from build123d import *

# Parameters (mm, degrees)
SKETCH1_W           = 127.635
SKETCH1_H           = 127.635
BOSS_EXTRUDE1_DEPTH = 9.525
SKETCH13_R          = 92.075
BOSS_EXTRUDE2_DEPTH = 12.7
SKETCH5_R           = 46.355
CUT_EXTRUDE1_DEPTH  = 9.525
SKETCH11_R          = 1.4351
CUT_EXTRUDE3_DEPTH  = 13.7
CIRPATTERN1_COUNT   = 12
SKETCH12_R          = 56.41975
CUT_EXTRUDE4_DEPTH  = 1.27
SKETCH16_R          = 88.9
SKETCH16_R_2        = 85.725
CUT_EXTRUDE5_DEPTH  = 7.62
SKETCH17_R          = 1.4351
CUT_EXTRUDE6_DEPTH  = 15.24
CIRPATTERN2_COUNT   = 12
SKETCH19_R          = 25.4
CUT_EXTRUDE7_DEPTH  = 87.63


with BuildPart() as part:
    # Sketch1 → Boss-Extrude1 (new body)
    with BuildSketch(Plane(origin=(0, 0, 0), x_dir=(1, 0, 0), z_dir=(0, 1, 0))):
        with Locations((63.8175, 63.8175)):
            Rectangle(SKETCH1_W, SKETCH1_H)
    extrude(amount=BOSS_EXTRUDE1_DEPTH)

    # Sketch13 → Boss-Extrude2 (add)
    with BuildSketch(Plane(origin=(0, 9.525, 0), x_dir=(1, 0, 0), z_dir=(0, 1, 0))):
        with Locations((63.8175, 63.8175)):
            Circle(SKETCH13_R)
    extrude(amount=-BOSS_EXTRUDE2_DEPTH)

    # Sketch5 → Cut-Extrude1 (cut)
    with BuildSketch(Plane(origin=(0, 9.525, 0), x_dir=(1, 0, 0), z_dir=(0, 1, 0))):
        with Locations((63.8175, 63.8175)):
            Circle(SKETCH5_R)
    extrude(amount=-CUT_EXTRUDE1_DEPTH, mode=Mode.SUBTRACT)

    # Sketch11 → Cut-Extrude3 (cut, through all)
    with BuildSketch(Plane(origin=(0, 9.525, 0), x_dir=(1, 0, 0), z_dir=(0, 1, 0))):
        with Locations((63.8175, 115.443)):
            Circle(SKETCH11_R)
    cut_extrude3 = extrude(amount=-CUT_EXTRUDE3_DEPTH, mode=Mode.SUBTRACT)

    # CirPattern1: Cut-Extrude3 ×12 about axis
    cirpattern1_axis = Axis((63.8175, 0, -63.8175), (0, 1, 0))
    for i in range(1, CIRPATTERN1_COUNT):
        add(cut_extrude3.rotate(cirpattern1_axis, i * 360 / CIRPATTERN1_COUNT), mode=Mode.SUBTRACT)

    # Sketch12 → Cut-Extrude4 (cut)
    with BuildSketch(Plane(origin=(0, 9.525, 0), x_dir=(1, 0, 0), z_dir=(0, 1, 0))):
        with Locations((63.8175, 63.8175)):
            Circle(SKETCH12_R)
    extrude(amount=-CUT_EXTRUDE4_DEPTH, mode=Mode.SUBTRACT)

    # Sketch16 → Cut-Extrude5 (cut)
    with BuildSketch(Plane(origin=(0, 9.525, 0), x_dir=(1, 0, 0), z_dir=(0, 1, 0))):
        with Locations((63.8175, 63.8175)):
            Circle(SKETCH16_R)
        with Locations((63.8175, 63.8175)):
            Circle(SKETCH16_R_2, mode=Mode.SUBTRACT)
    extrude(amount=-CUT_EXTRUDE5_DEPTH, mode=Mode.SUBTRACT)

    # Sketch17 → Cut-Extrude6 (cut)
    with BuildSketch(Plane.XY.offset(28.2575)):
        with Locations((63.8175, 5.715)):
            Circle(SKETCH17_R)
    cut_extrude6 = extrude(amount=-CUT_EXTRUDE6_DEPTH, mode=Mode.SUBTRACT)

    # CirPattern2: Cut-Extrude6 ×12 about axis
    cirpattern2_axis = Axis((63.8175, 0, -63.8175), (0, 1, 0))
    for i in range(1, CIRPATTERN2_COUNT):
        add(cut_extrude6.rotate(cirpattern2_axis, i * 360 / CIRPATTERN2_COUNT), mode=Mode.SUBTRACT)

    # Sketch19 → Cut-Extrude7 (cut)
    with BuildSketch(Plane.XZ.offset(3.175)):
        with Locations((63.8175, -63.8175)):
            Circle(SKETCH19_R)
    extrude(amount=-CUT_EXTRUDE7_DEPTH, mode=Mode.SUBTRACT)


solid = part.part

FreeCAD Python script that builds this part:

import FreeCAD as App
import Part
import Sketcher
Q = App.Units.Quantity

doc = App.newDocument("Part")
body = doc.addObject("PartDesign::Body", "Body")

sketch1 = doc.addObject("Sketcher::SketchObject", "Sketch")
body.addObject(sketch1)
sketch1.AttachmentSupport = (doc.XZ_Plane, [""])
sketch1.MapMode = "FlatFace"
sketch1.addGeometry([
    Part.LineSegment(App.Vector(0, -128, 0), App.Vector(0, 0, 0)),
    Part.LineSegment(App.Vector(0, 0, 0), App.Vector(128, 0, 0)),
    Part.LineSegment(App.Vector(128, 0, 0), App.Vector(128, -128, 0)),
    Part.LineSegment(App.Vector(128, -128, 0), App.Vector(0, -128, 0)),
], False)
sketch1.addConstraint([
    Sketcher.Constraint("Coincident", 0, 2, 1, 1),
    Sketcher.Constraint("Coincident", 1, 2, 2, 1),
    Sketcher.Constraint("Coincident", 2, 2, 3, 1),
    Sketcher.Constraint("Coincident", 3, 2, 0, 1),
    Sketcher.Constraint("Vertical", 0),
    Sketcher.Constraint("Horizontal", 1),
    Sketcher.Constraint("Vertical", 2),
    Sketcher.Constraint("Horizontal", 3),
    Sketcher.Constraint("Coincident", 0, 2, -1, 1),
    Sketcher.Constraint("Equal", 3, 0),
    Sketcher.Constraint("DistanceX", 1, 1, 1, 2, Q("5.025 in")),
])
pad1 = doc.addObject("PartDesign::Pad", "Pad")
body.addObject(pad1)
pad1.Profile = sketch1
pad1.Length = Q("0.375 in")
pad1.Reversed = True

sketch2 = doc.addObject("Sketcher::SketchObject", "Sketch001")
body.addObject(sketch2)
sketch2.AttachmentSupport = (doc.XZ_Plane, [""])
sketch2.MapMode = "FlatFace"
sketch2.AttachmentOffset = App.Placement(App.Vector(0, 0, -0.375 * 25.4), App.Rotation())
sketch2.addGeometry(Part.Circle(App.Vector(64, -64, 0), App.Vector(0, 0, 1), 92), False)
sketch2.addConstraint([
    Sketcher.Constraint("Diameter", 0, Q("7.25 in")),
    Sketcher.Constraint("DistanceX", -1, 1, 0, 3, Q("2.5125 in")),
    Sketcher.Constraint("DistanceY", 0, 3, -1, 1, Q("2.5125 in")),
])
pad2 = doc.addObject("PartDesign::Pad", "Pad001")
body.addObject(pad2)
pad2.Profile = sketch2
pad2.Length = Q("0.5 in")

sketch3 = doc.addObject("Sketcher::SketchObject", "Sketch002")
body.addObject(sketch3)
sketch3.AttachmentSupport = (doc.XZ_Plane, [""])
sketch3.MapMode = "FlatFace"
sketch3.AttachmentOffset = App.Placement(App.Vector(0, 0, -0.375 * 25.4), App.Rotation())
sketch3.addGeometry(Part.Circle(App.Vector(64, -64, 0), App.Vector(0, 0, 1), 46), False)
sketch3.addConstraint([
    Sketcher.Constraint("Diameter", 0, Q("3.65 in")),
    Sketcher.Constraint("DistanceX", -1, 1, 0, 3, Q("2.5125 in")),
    Sketcher.Constraint("DistanceY", 0, 3, -1, 1, Q("2.5125 in")),
])
pocket1 = doc.addObject("PartDesign::Pocket", "Pocket")
body.addObject(pocket1)
pocket1.Profile = sketch3
pocket1.Length = Q("0.375 in")
pocket1.Reversed = True

sketch4 = doc.addObject("Sketcher::SketchObject", "Sketch003")
body.addObject(sketch4)
sketch4.AttachmentSupport = (doc.XZ_Plane, [""])
sketch4.MapMode = "FlatFace"
sketch4.AttachmentOffset = App.Placement(App.Vector(0, 0, -0.375 * 25.4), App.Rotation())
sketch4.addGeometry(Part.Circle(App.Vector(63.8, -115.4, 0), App.Vector(0, 0, 1), 1.4), False)
sketch4.addConstraint([
    Sketcher.Constraint("Diameter", 0, Q("0.113 in")),
    Sketcher.Constraint("DistanceY", 0, 3, -1, 1, Q("4.545 in")),
    Sketcher.Constraint("DistanceX", -1, 1, 0, 3, Q("2.5125 in")),
])
pocket2 = doc.addObject("PartDesign::Pocket", "Pocket001")
body.addObject(pocket2)
pocket2.Profile = sketch4
pocket2.Type = "ThroughAll"
pocket2.Reversed = True
doc.recompute()

datumline = doc.addObject("PartDesign::Line", "DatumLine")
body.addObject(datumline)
datumline.Placement = App.Placement(App.Vector(63.8175, 0, -63.8175), App.Rotation(App.Vector(0, 0, 1), App.Vector(0, 1, 0)))
polarpattern = doc.addObject("PartDesign::PolarPattern", "PolarPattern")
body.addObject(polarpattern)
polarpattern.Originals = [pocket2]
polarpattern.Axis = (datumline, [""])
polarpattern.Angle = 360
polarpattern.Occurrences = 12
body.Tip = polarpattern

sketch5 = doc.addObject("Sketcher::SketchObject", "Sketch004")
body.addObject(sketch5)
sketch5.AttachmentSupport = (doc.XZ_Plane, [""])
sketch5.MapMode = "FlatFace"
sketch5.AttachmentOffset = App.Placement(App.Vector(0, 0, -0.375 * 25.4), App.Rotation())
sketch5.addGeometry(Part.Circle(App.Vector(64, -64, 0), App.Vector(0, 0, 1), 56), False)
sketch5.addConstraint([
    Sketcher.Constraint("Diameter", 0, Q("4.4425 in")),
    Sketcher.Constraint("DistanceX", -1, 1, 0, 3, Q("2.5125 in")),
    Sketcher.Constraint("DistanceY", 0, 3, -1, 1, Q("2.5125 in")),
])
pocket3 = doc.addObject("PartDesign::Pocket", "Pocket002")
body.addObject(pocket3)
pocket3.Profile = sketch5
pocket3.Length = Q("0.05 in")
pocket3.Reversed = True

sketch6 = doc.addObject("Sketcher::SketchObject", "Sketch005")
body.addObject(sketch6)
sketch6.AttachmentSupport = (doc.XZ_Plane, [""])
sketch6.MapMode = "FlatFace"
sketch6.AttachmentOffset = App.Placement(App.Vector(0, 0, -0.375 * 25.4), App.Rotation())
sketch6.addGeometry([
    Part.Circle(App.Vector(64, -64, 0), App.Vector(0, 0, 1), 89),
    Part.Circle(App.Vector(64, -64, 0), App.Vector(0, 0, 1), 86),
], False)
sketch6.addConstraint([
    Sketcher.Constraint("Coincident", 1, 3, 0, 3),
    Sketcher.Constraint("Diameter", 0, Q("7 in")),
    Sketcher.Constraint("Diameter", 1, Q("6.75 in")),
    Sketcher.Constraint("DistanceX", -1, 1, 0, 3, Q("2.5125 in")),
    Sketcher.Constraint("DistanceY", 0, 3, -1, 1, Q("2.5125 in")),
])
pocket4 = doc.addObject("PartDesign::Pocket", "Pocket003")
body.addObject(pocket4)
pocket4.Profile = sketch6
pocket4.Length = Q("0.3 in")
pocket4.Reversed = True

sketch7 = doc.addObject("Sketcher::SketchObject", "Sketch006")
body.addObject(sketch7)
sketch7.AttachmentSupport = (doc.XY_Plane, [""])
sketch7.MapMode = "FlatFace"
sketch7.AttachmentOffset = App.Placement(App.Vector(0, 0, 1.1125 * 25.4), App.Rotation())
sketch7.addGeometry(Part.Circle(App.Vector(63.8, 5.7, 0), App.Vector(0, 0, 1), 1.4), False)
sketch7.addConstraint([
    Sketcher.Constraint("Diameter", 0, Q("0.113 in")),
    Sketcher.Constraint("DistanceY", -1, 1, 0, 3, Q("0.225 in")),
    Sketcher.Constraint("DistanceX", -1, 1, 0, 3, Q("2.5125 in")),
])
pocket5 = doc.addObject("PartDesign::Pocket", "Pocket004")
body.addObject(pocket5)
pocket5.Profile = sketch7
pocket5.Length = Q("0.6 in")
doc.recompute()

datumline2 = doc.addObject("PartDesign::Line", "DatumLine001")
body.addObject(datumline2)
datumline2.Placement = App.Placement(App.Vector(63.8175, 0, -63.8175), App.Rotation(App.Vector(0, 0, 1), App.Vector(0, 1, 0)))
polarpattern2 = doc.addObject("PartDesign::PolarPattern", "PolarPattern001")
body.addObject(polarpattern2)
polarpattern2.Originals = [pocket5]
polarpattern2.Axis = (datumline2, [""])
polarpattern2.Angle = 360
polarpattern2.Occurrences = 12
body.Tip = polarpattern2

sketch8 = doc.addObject("Sketcher::SketchObject", "Sketch007")
body.addObject(sketch8)
sketch8.AttachmentSupport = (doc.XZ_Plane, [""])
sketch8.MapMode = "FlatFace"
sketch8.AttachmentOffset = App.Placement(App.Vector(0, 0, 0.125 * 25.4), App.Rotation())
sketch8.addGeometry(Part.Circle(App.Vector(64, -64, 0), App.Vector(0, 0, 1), 25), False)
sketch8.addConstraint([
    Sketcher.Constraint("Diameter", 0, Q("2 in")),
    Sketcher.Constraint("DistanceX", -1, 1, 0, 3, Q("2.5125 in")),
    Sketcher.Constraint("DistanceY", 0, 3, -1, 1, Q("2.5125 in")),
])
pocket6 = doc.addObject("PartDesign::Pocket", "Pocket005")
body.addObject(pocket6)
pocket6.Profile = sketch8
pocket6.Length = Q("3.45 in")

doc.recompute()
